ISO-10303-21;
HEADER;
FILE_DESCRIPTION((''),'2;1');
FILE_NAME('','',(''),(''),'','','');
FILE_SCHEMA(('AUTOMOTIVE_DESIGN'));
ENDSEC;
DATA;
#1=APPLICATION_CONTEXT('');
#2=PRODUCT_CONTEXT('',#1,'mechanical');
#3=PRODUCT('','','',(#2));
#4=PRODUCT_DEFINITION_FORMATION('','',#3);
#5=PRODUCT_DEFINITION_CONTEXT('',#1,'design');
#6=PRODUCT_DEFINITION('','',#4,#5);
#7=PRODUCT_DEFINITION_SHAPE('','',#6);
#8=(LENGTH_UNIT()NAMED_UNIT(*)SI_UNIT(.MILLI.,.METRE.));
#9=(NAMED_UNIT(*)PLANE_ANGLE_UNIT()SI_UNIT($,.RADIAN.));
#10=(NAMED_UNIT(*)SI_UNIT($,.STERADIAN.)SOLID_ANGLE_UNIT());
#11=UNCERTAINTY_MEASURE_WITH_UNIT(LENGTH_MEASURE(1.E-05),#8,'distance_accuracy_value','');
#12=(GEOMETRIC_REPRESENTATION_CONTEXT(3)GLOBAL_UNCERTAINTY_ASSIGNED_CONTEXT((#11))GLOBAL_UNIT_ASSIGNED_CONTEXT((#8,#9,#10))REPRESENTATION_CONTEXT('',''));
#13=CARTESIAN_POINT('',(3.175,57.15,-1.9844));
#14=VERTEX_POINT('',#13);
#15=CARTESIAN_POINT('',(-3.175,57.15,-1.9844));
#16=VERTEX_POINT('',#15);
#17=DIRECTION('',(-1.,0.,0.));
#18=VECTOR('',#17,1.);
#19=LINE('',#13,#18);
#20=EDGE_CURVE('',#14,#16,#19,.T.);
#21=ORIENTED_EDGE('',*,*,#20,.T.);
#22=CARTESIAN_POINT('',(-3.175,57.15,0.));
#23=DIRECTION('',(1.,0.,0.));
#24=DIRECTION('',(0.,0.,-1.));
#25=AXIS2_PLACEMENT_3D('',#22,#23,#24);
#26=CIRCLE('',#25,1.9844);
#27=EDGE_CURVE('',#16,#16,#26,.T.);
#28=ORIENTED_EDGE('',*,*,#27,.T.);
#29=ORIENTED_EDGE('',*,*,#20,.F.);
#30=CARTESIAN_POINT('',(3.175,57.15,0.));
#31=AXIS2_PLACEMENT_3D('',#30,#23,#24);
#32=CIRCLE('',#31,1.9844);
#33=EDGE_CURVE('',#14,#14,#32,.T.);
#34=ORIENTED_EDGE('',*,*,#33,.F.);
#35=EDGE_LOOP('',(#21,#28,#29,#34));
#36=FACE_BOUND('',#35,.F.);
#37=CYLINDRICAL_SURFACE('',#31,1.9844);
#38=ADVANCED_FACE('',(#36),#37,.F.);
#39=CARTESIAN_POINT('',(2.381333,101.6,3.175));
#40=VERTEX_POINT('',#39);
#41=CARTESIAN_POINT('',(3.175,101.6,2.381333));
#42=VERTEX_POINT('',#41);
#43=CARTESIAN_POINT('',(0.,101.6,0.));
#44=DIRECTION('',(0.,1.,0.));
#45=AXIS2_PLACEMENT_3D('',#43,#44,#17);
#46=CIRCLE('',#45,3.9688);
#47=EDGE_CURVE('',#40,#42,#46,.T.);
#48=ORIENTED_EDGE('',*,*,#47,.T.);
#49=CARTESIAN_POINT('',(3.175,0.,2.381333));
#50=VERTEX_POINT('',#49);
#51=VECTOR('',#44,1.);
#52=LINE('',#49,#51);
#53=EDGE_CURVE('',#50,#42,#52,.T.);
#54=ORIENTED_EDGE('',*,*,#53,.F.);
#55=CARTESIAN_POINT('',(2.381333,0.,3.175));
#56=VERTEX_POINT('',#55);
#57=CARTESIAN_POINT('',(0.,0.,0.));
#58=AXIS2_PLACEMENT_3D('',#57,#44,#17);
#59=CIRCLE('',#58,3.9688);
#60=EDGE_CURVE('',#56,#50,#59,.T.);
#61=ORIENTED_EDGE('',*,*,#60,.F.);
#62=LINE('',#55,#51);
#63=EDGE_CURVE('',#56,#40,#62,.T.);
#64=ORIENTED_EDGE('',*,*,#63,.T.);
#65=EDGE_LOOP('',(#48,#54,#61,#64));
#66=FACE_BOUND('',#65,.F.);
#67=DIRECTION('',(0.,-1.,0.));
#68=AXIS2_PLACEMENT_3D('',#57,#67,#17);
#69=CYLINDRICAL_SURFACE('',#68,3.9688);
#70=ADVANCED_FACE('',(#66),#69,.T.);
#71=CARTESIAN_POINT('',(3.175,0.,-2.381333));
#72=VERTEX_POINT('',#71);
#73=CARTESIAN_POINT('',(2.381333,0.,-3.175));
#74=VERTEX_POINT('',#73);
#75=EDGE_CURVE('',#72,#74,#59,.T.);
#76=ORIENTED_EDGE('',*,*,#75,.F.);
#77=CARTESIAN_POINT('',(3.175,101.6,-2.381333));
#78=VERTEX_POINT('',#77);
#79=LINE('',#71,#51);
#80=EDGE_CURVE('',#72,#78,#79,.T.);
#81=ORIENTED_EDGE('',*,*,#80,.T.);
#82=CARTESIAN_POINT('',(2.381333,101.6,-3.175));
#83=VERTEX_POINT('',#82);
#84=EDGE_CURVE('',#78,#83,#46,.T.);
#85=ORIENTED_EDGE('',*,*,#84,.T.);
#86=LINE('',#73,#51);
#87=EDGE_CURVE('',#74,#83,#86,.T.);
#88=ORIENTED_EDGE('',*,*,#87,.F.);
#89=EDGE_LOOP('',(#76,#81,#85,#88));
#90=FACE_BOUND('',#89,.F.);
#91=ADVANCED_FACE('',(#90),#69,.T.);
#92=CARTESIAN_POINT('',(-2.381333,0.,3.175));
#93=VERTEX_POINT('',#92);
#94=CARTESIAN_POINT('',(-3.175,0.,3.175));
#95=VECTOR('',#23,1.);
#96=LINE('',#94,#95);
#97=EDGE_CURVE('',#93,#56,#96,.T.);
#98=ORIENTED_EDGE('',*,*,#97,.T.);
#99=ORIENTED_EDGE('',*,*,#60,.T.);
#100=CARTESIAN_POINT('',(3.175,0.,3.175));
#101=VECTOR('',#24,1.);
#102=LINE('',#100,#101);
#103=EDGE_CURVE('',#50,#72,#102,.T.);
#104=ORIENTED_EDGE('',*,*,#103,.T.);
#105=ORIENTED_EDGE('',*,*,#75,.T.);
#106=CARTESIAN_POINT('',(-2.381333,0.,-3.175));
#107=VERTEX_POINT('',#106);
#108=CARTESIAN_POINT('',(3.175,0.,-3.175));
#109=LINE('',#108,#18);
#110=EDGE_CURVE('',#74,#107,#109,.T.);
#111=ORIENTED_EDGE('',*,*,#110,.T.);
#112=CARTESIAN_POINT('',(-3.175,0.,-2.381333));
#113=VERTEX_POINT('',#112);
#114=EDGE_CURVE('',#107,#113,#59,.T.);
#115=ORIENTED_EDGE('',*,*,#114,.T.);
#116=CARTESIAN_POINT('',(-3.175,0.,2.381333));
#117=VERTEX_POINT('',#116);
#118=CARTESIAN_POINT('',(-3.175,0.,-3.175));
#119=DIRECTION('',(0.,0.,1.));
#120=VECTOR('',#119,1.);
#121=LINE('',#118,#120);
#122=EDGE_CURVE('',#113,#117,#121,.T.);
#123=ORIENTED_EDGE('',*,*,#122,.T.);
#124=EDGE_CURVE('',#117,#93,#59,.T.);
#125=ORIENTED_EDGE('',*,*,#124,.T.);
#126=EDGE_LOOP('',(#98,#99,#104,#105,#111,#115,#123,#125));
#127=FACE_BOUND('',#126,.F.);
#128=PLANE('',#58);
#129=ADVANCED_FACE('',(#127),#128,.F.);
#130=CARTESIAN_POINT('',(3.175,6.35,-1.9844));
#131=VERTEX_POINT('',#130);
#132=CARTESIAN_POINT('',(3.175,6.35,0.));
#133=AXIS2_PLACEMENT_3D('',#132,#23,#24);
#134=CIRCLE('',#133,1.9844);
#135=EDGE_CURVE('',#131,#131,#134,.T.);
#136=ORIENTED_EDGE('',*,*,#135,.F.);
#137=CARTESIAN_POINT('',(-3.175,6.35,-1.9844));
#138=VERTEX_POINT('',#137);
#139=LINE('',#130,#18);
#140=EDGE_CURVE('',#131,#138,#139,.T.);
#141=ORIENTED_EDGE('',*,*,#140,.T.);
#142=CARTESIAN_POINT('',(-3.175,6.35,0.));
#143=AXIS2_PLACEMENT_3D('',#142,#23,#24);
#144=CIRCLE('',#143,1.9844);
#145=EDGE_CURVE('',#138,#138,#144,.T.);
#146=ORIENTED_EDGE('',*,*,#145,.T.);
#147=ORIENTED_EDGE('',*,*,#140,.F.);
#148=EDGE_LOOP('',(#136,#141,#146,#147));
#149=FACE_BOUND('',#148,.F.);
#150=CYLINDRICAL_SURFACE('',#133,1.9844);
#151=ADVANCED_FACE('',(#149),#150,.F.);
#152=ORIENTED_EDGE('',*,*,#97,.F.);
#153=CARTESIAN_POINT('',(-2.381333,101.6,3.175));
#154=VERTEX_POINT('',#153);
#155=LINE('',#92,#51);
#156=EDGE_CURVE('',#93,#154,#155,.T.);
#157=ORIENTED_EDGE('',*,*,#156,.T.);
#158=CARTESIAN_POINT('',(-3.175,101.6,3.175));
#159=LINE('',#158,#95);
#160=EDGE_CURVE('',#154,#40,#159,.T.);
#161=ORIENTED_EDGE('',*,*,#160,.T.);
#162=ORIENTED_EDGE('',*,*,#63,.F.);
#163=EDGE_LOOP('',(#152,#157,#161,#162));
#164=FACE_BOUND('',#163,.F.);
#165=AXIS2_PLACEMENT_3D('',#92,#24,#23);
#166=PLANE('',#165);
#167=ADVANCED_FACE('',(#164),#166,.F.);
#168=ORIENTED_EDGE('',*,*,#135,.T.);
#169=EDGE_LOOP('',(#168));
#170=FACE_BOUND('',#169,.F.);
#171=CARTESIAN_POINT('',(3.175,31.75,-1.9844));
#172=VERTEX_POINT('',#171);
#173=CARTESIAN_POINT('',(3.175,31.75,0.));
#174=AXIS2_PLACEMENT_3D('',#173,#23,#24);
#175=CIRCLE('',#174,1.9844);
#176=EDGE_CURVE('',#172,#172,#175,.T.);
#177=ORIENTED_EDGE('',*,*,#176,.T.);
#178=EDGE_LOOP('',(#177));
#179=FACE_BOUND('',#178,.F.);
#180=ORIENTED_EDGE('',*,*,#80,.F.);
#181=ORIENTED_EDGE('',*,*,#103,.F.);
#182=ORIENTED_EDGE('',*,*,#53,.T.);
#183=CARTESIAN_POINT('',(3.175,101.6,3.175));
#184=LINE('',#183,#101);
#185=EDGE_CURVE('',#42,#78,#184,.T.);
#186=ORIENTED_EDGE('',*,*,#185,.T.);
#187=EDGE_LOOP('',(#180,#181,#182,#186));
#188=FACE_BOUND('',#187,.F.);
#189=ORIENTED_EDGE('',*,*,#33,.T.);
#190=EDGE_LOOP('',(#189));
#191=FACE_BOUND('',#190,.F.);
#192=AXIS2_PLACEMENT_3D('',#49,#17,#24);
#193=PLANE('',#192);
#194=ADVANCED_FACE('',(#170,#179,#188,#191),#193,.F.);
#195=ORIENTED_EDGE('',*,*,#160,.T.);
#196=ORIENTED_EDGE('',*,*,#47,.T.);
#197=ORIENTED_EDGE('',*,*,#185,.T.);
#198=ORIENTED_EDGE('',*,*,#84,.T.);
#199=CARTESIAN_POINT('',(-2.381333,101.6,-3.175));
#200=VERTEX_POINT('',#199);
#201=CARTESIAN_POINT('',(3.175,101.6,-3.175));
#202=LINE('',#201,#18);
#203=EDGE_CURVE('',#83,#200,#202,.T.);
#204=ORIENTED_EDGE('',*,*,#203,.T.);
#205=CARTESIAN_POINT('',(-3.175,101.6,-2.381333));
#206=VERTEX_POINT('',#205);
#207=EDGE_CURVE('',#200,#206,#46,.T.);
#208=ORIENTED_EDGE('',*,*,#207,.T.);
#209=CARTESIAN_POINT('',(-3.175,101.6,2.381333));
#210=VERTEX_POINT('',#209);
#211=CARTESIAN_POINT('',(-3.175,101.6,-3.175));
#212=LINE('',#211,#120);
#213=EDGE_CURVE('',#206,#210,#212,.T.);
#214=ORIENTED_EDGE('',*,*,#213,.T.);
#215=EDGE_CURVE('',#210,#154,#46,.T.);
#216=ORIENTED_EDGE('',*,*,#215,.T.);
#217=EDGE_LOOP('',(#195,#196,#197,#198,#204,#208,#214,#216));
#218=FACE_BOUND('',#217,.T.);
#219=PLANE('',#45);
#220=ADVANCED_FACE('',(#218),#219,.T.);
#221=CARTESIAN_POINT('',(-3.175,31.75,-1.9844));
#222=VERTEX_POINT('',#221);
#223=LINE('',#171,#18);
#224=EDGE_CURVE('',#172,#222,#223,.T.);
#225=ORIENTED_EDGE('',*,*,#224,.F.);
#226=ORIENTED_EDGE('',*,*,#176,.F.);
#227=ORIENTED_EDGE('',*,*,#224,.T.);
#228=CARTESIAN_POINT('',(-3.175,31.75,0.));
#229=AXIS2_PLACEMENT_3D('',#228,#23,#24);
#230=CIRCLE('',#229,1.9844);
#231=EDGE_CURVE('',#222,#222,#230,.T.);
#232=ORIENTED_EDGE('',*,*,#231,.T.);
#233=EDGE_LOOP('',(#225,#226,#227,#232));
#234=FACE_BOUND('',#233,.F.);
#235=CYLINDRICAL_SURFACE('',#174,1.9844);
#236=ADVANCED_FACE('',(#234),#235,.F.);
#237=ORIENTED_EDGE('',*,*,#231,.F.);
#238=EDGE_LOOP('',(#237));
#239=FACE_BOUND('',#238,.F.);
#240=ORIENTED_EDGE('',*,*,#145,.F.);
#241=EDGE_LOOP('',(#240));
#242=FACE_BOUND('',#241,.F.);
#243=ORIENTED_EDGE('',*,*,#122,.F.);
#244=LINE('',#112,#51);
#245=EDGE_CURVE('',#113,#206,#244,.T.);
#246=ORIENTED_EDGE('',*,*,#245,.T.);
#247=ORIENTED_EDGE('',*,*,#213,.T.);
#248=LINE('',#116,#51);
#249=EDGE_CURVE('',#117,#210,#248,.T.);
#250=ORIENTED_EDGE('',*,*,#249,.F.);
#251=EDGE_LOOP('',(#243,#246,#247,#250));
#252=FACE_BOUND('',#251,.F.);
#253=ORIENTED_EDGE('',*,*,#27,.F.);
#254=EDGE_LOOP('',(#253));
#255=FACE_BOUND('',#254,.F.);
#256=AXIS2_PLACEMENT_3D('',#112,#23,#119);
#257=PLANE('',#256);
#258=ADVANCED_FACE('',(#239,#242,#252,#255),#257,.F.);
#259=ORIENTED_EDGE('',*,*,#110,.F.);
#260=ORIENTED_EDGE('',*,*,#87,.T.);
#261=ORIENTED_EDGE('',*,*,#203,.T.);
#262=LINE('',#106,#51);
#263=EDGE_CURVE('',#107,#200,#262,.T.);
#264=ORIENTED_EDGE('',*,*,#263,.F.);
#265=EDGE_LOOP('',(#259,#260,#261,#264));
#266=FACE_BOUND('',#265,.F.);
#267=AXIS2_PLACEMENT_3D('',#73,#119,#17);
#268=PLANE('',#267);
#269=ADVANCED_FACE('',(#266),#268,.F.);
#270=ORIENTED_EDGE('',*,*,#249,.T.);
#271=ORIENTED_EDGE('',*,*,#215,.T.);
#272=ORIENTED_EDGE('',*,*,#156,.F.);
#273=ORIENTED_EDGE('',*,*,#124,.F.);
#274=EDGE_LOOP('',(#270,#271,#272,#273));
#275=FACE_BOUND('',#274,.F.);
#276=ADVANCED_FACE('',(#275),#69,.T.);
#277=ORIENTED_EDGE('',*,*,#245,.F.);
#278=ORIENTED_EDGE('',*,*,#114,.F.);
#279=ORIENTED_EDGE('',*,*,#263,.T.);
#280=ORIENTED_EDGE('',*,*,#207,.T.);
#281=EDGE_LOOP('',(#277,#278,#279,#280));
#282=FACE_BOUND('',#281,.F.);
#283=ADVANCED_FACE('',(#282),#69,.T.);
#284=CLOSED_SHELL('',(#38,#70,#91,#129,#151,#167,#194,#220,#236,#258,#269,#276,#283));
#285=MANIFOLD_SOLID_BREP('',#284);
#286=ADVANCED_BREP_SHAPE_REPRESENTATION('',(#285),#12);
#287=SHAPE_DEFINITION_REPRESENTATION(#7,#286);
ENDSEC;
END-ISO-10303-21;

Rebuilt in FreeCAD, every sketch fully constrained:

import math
import FreeCAD as App
import Part
import Sketcher
Q = App.Units.Quantity

doc = App.newDocument("Part")
params = doc.addObject("Spreadsheet::Sheet", "Params")
for row, (alias, value) in enumerate([
    ("sketch1_radius", "0.156252 in"),
    ("sketch1_width", "0.1875 in"),
    ("pad1_length", "4 in"),
    ("sketch2_diameter", "0.156252 in"),
    ("pocket1_length", "4 in"),
], start=1):
    params.set(f"A{row}", alias)
    params.set(f"B{row}", "=" + value)
    params.setAlias(f"B{row}", alias)

body = doc.addObject("PartDesign::Body", "Body")

# Sketch on XZ plane
sketch1 = body.newObject("Sketcher::SketchObject", "Sketch")
sketch1.AttachmentSupport = (doc.getObject("XZ_Plane"), [""])
sketch1.MapMode = "FlatFace"
sketch1.addGeometry(Part.ArcOfCircle(Part.Circle(App.Vector(0, 0, 0), App.Vector(0, 0, 1), 4), math.radians(-53.13), math.radians(-36.87)), False)
sketch1.addGeometry(Part.LineSegment(App.Vector(2.4, -3.2, 0), App.Vector(-2.4, -3.2, 0)), False)
sketch1.addGeometry(Part.ArcOfCircle(Part.Circle(App.Vector(0, 0, 0), App.Vector(0, 0, 1), 4), math.radians(-143.13), math.radians(-126.87)), False)
sketch1.addGeometry(Part.LineSegment(App.Vector(-3.2, -2.4, 0), App.Vector(-3.2, 2.4, 0)), False)
sketch1.addGeometry(Part.ArcOfCircle(Part.Circle(App.Vector(0, 0, 0), App.Vector(0, 0, 1), 4), math.radians(126.87), math.radians(143.13)), False)
sketch1.addGeometry(Part.LineSegment(App.Vector(-2.4, 3.2, 0), App.Vector(2.4, 3.2, 0)), False)
sketch1.addGeometry(Part.ArcOfCircle(Part.Circle(App.Vector(0, 0, 0), App.Vector(0, 0, 1), 4), math.radians(36.87), math.radians(53.13)), False)
sketch1.addGeometry(Part.LineSegment(App.Vector(3.2, 2.4, 0), App.Vector(3.2, -2.4, 0)), False)
sketch1.addConstraint(Sketcher.Constraint("Coincident", 0, 1, 1, 1))
sketch1.addConstraint(Sketcher.Constraint("Coincident", 1, 2, 2, 2))
sketch1.addConstraint(Sketcher.Constraint("Coincident", 2, 1, 3, 1))
sketch1.addConstraint(Sketcher.Constraint("Coincident", 3, 2, 4, 2))
sketch1.addConstraint(Sketcher.Constraint("Coincident", 4, 1, 5, 1))
sketch1.addConstraint(Sketcher.Constraint("Coincident", 5, 2, 6, 2))
sketch1.addConstraint(Sketcher.Constraint("Coincident", 6, 1, 7, 1))
sketch1.addConstraint(Sketcher.Constraint("Coincident", 7, 2, 0, 2))
sketch1.addConstraint(Sketcher.Constraint("Horizontal", 1))
sketch1.addConstraint(Sketcher.Constraint("Vertical", 3))
sketch1.addConstraint(Sketcher.Constraint("Horizontal", 5))
sketch1.addConstraint(Sketcher.Constraint("Vertical", 7))
sketch1.addConstraint(Sketcher.Constraint("Coincident", 0, 3, -1, 1))
sketch1.addConstraint(Sketcher.Constraint("Coincident", 2, 3, -1, 1))
sketch1.addConstraint(Sketcher.Constraint("Coincident", 4, 3, -1, 1))
sketch1.addConstraint(Sketcher.Constraint("Coincident", 6, 3, -1, 1))
sketch1.addConstraint(Sketcher.Constraint("Equal", 0, 2))
sketch1.addConstraint(Sketcher.Constraint("Equal", 2, 4))
sketch1.addConstraint(Sketcher.Constraint("Equal", 4, 6))
sketch1.addConstraint(Sketcher.Constraint("Horizontal", 3, 2, 6, 1))
sketch1.addConstraint(Sketcher.Constraint("Vertical", 1, 2, 4, 1))
sketch1.addConstraint(Sketcher.Constraint("Equal", 5, 3))
sketch1.addConstraint(Sketcher.Constraint("Radius", 0, Q("0.156252 in")))
sketch1.addConstraint(Sketcher.Constraint("DistanceX", 1, 2, 1, 1, Q("0.1875 in")))
sketch1.setExpression("Constraints[22]", "Params.sketch1_radius")
sketch1.setExpression("Constraints[23]", "Params.sketch1_width")
pad1 = body.newObject("PartDesign::Pad", "Pad")
pad1.Profile = sketch1
pad1.setExpression("Length", "Params.pad1_length")
pad1.Reversed = True

# Sketch on YZ plane
sketch2 = body.newObject("Sketcher::SketchObject", "Sketch001")
sketch2.AttachmentSupport = (doc.getObject("YZ_Plane"), [""])
sketch2.MapMode = "FlatFace"
sketch2.AttachmentOffset = App.Placement(App.Vector(0, 0, 0.125 * 25.4), App.Rotation())
sketch2.addGeometry(Part.Circle(App.Vector(6.3, 0, 0), App.Vector(0, 0, 1), 2), False)
sketch2.addGeometry(Part.Circle(App.Vector(31.8, 0, 0), App.Vector(0, 0, 1), 2), False)
sketch2.addGeometry(Part.Circle(App.Vector(57.1, 0, 0), App.Vector(0, 0, 1), 2), False)
sketch2.addConstraint(Sketcher.Constraint("Equal", 0, 1))
sketch2.addConstraint(Sketcher.Constraint("Equal", 1, 2))
sketch2.addConstraint(Sketcher.Constraint("PointOnObject", 0, 3, -1))
sketch2.addConstraint(Sketcher.Constraint("PointOnObject", 1, 3, -1))
sketch2.addConstraint(Sketcher.Constraint("PointOnObject", 2, 3, -1))
sketch2.addConstraint(Sketcher.Constraint("Diameter", 0, Q("0.156252 in")))
sketch2.addConstraint(Sketcher.Constraint("DistanceX", 0, 3, 1, 3, Q("1 in")))
sketch2.addConstraint(Sketcher.Constraint("DistanceX", 1, 3, 2, 3, Q("1 in")))
sketch2.addConstraint(Sketcher.Constraint("DistanceX", -1, 1, 0, 3, Q("0.25 in")))
sketch2.setExpression("Constraints[5]", "Params.sketch2_diameter")
pocket1 = body.newObject("PartDesign::Pocket", "Pocket")
pocket1.Profile = sketch2
pocket1.setExpression("Length", "Params.pocket1_length")

doc.recompute()
